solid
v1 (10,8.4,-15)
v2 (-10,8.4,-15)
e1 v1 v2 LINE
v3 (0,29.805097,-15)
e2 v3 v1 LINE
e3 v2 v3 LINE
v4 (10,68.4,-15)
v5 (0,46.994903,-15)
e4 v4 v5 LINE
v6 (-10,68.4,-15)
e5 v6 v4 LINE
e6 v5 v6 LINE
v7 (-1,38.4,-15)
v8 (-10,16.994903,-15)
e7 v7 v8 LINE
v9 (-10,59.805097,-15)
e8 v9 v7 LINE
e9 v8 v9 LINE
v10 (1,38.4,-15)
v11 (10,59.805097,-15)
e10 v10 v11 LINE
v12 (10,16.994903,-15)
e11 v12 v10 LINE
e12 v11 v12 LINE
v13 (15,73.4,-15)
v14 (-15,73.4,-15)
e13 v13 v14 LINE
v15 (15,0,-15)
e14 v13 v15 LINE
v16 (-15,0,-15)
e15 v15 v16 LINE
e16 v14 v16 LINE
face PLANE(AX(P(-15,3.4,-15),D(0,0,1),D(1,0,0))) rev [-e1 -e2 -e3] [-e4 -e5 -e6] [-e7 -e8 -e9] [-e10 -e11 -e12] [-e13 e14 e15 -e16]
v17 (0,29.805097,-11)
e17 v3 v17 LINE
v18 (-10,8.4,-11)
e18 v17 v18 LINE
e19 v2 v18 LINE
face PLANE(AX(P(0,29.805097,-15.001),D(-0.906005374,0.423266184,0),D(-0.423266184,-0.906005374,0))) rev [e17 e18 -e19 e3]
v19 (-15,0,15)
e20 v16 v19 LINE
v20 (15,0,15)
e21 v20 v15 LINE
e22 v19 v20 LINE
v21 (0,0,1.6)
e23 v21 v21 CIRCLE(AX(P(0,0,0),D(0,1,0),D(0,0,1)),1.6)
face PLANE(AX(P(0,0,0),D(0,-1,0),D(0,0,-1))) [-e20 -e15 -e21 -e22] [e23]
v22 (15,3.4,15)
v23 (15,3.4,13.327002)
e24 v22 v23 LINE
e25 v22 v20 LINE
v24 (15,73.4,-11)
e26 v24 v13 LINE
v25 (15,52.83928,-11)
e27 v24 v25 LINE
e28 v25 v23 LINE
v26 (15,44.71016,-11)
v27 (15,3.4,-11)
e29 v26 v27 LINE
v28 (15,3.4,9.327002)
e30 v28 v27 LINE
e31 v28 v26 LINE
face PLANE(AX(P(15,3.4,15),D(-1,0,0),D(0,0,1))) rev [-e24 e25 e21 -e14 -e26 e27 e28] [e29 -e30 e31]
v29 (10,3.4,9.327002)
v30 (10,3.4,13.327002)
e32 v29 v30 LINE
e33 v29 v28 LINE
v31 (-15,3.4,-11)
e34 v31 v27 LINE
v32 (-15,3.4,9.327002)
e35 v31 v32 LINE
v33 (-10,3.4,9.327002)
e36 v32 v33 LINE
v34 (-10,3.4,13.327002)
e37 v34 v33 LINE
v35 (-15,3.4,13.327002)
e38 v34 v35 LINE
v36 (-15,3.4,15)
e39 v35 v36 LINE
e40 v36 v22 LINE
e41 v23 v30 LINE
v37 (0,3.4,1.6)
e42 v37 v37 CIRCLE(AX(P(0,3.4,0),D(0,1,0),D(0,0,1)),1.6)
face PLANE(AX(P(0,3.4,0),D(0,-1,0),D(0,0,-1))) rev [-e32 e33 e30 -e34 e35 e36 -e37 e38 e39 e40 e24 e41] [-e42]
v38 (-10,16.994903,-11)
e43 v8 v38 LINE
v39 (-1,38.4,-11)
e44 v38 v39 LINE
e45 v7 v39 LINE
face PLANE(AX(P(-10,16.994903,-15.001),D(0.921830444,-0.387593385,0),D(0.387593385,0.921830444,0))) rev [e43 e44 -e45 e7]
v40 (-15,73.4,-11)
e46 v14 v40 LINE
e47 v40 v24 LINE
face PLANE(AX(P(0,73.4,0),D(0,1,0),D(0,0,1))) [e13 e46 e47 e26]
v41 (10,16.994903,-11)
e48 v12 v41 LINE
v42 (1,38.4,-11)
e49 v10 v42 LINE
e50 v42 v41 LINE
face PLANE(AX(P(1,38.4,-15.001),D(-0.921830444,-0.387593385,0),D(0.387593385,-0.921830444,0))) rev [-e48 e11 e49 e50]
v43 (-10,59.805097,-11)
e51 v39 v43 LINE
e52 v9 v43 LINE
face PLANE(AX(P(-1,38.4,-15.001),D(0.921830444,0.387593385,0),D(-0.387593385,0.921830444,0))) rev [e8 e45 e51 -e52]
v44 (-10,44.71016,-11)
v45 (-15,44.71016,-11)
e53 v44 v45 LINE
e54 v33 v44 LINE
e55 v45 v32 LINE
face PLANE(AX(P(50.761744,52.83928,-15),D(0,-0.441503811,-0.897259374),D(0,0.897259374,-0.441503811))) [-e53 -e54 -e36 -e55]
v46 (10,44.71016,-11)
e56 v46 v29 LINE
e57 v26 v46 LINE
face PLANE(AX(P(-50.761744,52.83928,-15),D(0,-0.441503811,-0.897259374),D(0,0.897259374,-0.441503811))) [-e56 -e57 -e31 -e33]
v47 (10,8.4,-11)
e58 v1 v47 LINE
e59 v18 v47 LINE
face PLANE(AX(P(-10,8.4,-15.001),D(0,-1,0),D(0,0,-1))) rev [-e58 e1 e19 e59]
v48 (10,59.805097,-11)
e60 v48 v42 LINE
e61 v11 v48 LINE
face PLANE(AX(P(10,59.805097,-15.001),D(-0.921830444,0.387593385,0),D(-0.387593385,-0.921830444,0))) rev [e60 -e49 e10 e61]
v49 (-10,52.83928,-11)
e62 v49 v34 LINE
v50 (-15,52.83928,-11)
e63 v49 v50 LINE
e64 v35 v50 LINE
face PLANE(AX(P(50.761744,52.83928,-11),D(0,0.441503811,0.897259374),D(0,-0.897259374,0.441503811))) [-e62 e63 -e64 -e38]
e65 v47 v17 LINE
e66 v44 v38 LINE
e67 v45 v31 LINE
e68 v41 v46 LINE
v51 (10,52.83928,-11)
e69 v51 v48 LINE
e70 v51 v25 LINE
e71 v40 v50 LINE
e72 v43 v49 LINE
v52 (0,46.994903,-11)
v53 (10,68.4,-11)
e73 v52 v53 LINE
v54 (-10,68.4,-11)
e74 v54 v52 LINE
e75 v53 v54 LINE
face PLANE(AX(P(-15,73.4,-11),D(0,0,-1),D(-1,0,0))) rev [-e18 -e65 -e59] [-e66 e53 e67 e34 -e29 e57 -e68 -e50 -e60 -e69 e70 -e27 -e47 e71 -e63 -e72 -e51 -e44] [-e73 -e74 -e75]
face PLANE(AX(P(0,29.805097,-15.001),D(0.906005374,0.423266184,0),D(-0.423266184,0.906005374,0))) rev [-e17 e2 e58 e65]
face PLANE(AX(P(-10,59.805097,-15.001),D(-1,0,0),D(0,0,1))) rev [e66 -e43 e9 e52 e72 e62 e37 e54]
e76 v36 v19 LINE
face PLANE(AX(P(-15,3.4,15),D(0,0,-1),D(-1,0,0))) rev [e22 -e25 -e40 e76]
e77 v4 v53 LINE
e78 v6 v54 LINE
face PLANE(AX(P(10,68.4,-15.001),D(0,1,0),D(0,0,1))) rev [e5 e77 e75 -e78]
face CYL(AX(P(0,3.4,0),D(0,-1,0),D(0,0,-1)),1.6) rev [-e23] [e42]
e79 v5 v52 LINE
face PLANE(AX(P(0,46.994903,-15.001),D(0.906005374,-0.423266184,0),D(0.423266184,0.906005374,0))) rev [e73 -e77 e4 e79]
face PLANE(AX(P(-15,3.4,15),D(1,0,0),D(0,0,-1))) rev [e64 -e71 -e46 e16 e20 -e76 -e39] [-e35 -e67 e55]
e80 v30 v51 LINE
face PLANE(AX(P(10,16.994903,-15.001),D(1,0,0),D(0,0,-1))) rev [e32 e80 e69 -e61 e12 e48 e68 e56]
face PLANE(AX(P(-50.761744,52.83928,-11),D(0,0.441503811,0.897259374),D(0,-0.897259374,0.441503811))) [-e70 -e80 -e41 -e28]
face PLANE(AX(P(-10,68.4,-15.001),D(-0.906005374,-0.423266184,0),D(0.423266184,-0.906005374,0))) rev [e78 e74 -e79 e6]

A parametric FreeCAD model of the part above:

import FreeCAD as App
import Part
import Sketcher


def add_polygon(sketch, points):
    """Adds a closed chain of lines whose ends are joined by coincident constraints."""
    first, n = sketch.GeometryCount, len(points)
    for a, b in zip(points, points[1:] + points[:1]):
        sketch.addGeometry(Part.LineSegment(App.Vector(*a, 0), App.Vector(*b, 0)), False)
    for i in range(n):
        sketch.addConstraint(Sketcher.Constraint("Coincident", first + i, 2, first + (i + 1) % n, 1))

doc = App.newDocument("Part")
body = doc.addObject("PartDesign::Body", "Body")

# Sketch on XZ plane
sketch1 = body.newObject("Sketcher::SketchObject", "Sketch")
sketch1.AttachmentSupport = (doc.getObject("XZ_Plane"), [""])
sketch1.MapMode = "FlatFace"
add_polygon(sketch1, [(-15, -15), (-15, 15), (15, 15), (15, -15)])  # lines 0-3
sketch1.addGeometry(Part.Circle(App.Vector(0, 0, 0), App.Vector(0, 0, 1), 1.6), False)  # 4
sketch1.addConstraint(Sketcher.Constraint("Vertical", 0))
sketch1.addConstraint(Sketcher.Constraint("Horizontal", 1))
sketch1.addConstraint(Sketcher.Constraint("Vertical", 2))
sketch1.addConstraint(Sketcher.Constraint("Horizontal", 3))
sketch1.addConstraint(Sketcher.Constraint("Coincident", 4, 3, -1, 1))
sketch1.addConstraint(Sketcher.Constraint("Symmetric", 0, 2, 2, 2, -1, 1))
sketch1.addConstraint(Sketcher.Constraint("Equal", 3, 0))
sketch1.addConstraint(Sketcher.Constraint("Diameter", 4, 3.2))
sketch1.addConstraint(Sketcher.Constraint("DistanceX", 1, 1, 1, 2, 30.0))
pad1 = body.newObject("PartDesign::Pad", "Pad")
pad1.Profile = sketch1
pad1.Length = 3.4
pad1.Reversed = True

# Sketch on XZ plane
sketch2 = body.newObject("Sketcher::SketchObject", "Sketch001")
sketch2.AttachmentSupport = (doc.getObject("XZ_Plane"), [""])
sketch2.MapMode = "FlatFace"
sketch2.AttachmentOffset = App.Placement(App.Vector(0, 0, -3.4), App.Rotation())
add_polygon(sketch2, [(-15, -15), (-15, -11), (15, -11), (15, -15)])  # lines 0-3
sketch2.addConstraint(Sketcher.Constraint("Vertical", 0))
sketch2.addConstraint(Sketcher.Constraint("Horizontal", 1))
sketch2.addConstraint(Sketcher.Constraint("Vertical", 2))
sketch2.addConstraint(Sketcher.Constraint("Horizontal", 3))
sketch2.addConstraint(Sketcher.Constraint("DistanceX", 1, 1, 1, 2, 30.0))
sketch2.addConstraint(Sketcher.Constraint("DistanceY", 0, 1, 0, 2, 4.0))
sketch2.addConstraint(Sketcher.Constraint("DistanceX", 0, 2, -1, 1, 15.0))
sketch2.addConstraint(Sketcher.Constraint("DistanceY", 0, 2, -1, 1, 11.0))
pad2 = body.newObject("PartDesign::Pad", "Pad001")
pad2.Profile = sketch2
pad2.Length = 70
pad2.Reversed = True

# Sketch on XY plane
sketch3 = body.newObject("Sketcher::SketchObject", "Sketch002")
sketch3.AttachmentSupport = (doc.getObject("XY_Plane"), [""])
sketch3.MapMode = "FlatFace"
sketch3.AttachmentOffset = App.Placement(App.Vector(0, 0, -11), App.Rotation())
add_polygon(sketch3, [(1, 38), (10, 17), (10, 60)])  # lines 0-2
sketch3.addConstraint(Sketcher.Constraint("Vertical", 1))
sketch3.addConstraint(Sketcher.Constraint("Equal", 0, 2))
sketch3.addConstraint(Sketcher.Constraint("DistanceX", -1, 1, 0, 2, 10.0))
sketch3.addConstraint(Sketcher.Constraint("DistanceX", -1, 1, 2, 2, 1.0))
sketch3.addConstraint(Sketcher.Constraint("DistanceY", -1, 1, 2, 2, 38.4))
sketch3.addConstraint(Sketcher.Constraint("Distance", 0, 23.220211))
pocket1 = body.newObject("PartDesign::Pocket", "Pocket")
pocket1.Profile = sketch3
pocket1.Type = "UpToFirst"

# Sketch on XY plane
sketch4 = body.newObject("Sketcher::SketchObject", "Sketch003")
sketch4.AttachmentSupport = (doc.getObject("XY_Plane"), [""])
sketch4.MapMode = "FlatFace"
sketch4.AttachmentOffset = App.Placement(App.Vector(0, 0, -11), App.Rotation())
add_polygon(sketch4, [(-1, 38), (-10, 60), (-10, 17)])  # lines 0-2
sketch4.addConstraint(Sketcher.Constraint("Vertical", 1))
sketch4.addConstraint(Sketcher.Constraint("Equal", 0, 2))
sketch4.addConstraint(Sketcher.Constraint("DistanceX", 0, 2, -1, 1, 10.0))
sketch4.addConstraint(Sketcher.Constraint("DistanceX", 2, 2, -1, 1, 1.0))
sketch4.addConstraint(Sketcher.Constraint("DistanceY", -1, 1, 2, 2, 38.4))
sketch4.addConstraint(Sketcher.Constraint("Distance", 0, 23.220211))
pocket2 = body.newObject("PartDesign::Pocket", "Pocket001")
pocket2.Profile = sketch4
pocket2.Type = "UpToFirst"

# Sketch on XY plane
sketch5 = body.newObject("Sketcher::SketchObject", "Sketch004")
sketch5.AttachmentSupport = (doc.getObject("XY_Plane"), [""])
sketch5.MapMode = "FlatFace"
sketch5.AttachmentOffset = App.Placement(App.Vector(0, 0, -11), App.Rotation())
add_polygon(sketch5, [(-10, 68), (0, 47), (10, 68)])  # lines 0-2
sketch5.addConstraint(Sketcher.Constraint("Horizontal", 2))
sketch5.addConstraint(Sketcher.Constraint("PointOnObject", 0, 2, -2))
sketch5.addConstraint(Sketcher.Constraint("Equal", 0, 1))
sketch5.addConstraint(Sketcher.Constraint("DistanceX", 2, 2, 2, 1, 20.0))
sketch5.addConstraint(Sketcher.Constraint("DistanceY", -1, 1, 1, 2, 68.4))
sketch5.addConstraint(Sketcher.Constraint("Distance", 0, 23.625795))
pocket3 = body.newObject("PartDesign::Pocket", "Pocket002")
pocket3.Profile = sketch5
pocket3.Type = "UpToFirst"

# Sketch on XY plane
sketch6 = body.newObject("Sketcher::SketchObject", "Sketch005")
sketch6.AttachmentSupport = (doc.getObject("XY_Plane"), [""])
sketch6.MapMode = "FlatFace"
sketch6.AttachmentOffset = App.Placement(App.Vector(0, 0, -11), App.Rotation())
add_polygon(sketch6, [(0, 30), (-10, 8), (10, 8)])  # lines 0-2
sketch6.addConstraint(Sketcher.Constraint("Horizontal", 1))
sketch6.addConstraint(Sketcher.Constraint("PointOnObject", 2, 2, -2))
sketch6.addConstraint(Sketcher.Constraint("Equal", 0, 2))
sketch6.addConstraint(Sketcher.Constraint("DistanceX", 1, 1, 1, 2, 20.0))
sketch6.addConstraint(Sketcher.Constraint("DistanceY", -1, 1, 0, 2, 8.4))
sketch6.addConstraint(Sketcher.Constraint("Distance", 0, 23.625795))
pocket4 = body.newObject("PartDesign::Pocket", "Pocket003")
pocket4.Profile = sketch6
pocket4.Type = "UpToFirst"

# Sketch on YZ plane
sketch7 = body.newObject("Sketcher::SketchObject", "Sketch006")
sketch7.AttachmentSupport = (doc.getObject("YZ_Plane"), [""])
sketch7.MapMode = "FlatFace"
sketch7.AttachmentOffset = App.Placement(App.Vector(0, 0, -15), App.Rotation())
add_polygon(sketch7, [(52.8, -11), (52.8, -15), (0, 11), (0, 15)])  # lines 0-3
sketch7.addConstraint(Sketcher.Constraint("Vertical", 0))
sketch7.addConstraint(Sketcher.Constraint("Vertical", 2))
sketch7.addConstraint(Sketcher.Constraint("PointOnObject", 1, 2, -2))
sketch7.addConstraint(Sketcher.Constraint("Parallel", 1, 3))
sketch7.addConstraint(Sketcher.Constraint("DistanceY", 0, 2, 0, 1, 4.0))
sketch7.addConstraint(Sketcher.Constraint("DistanceY", 0, 2, -1, 1, 15.0))
sketch7.addConstraint(Sketcher.Constraint("DistanceY", -1, 1, 1, 2, 11.0))
sketch7.addConstraint(Sketcher.Constraint("Distance", 1, 58.889639))
pad3 = body.newObject("PartDesign::Pad", "Pad002")
pad3.Profile = sketch7
pad3.Length = 5

# Sketch on YZ plane
sketch8 = body.newObject("Sketcher::SketchObject", "Sketch007")
sketch8.AttachmentSupport = (doc.getObject("YZ_Plane"), [""])
sketch8.MapMode = "FlatFace"
sketch8.AttachmentOffset = App.Placement(App.Vector(0, 0, 15), App.Rotation())
add_polygon(sketch8, [(52.8, -15), (52.8, -11), (0, 15), (0, 11)])  # lines 0-3
sketch8.addConstraint(Sketcher.Constraint("Vertical", 0))
sketch8.addConstraint(Sketcher.Constraint("Vertical", 2))
sketch8.addConstraint(Sketcher.Constraint("PointOnObject", 1, 2, -2))
sketch8.addConstraint(Sketcher.Constraint("Parallel", 1, 3))
sketch8.addConstraint(Sketcher.Constraint("DistanceY", 0, 1, 0, 2, 4.0))
sketch8.addConstraint(Sketcher.Constraint("DistanceY", 0, 2, -1, 1, 11.0))
sketch8.addConstraint(Sketcher.Constraint("DistanceY", -1, 1, 1, 2, 15.0))
sketch8.addConstraint(Sketcher.Constraint("Distance", 1, 58.889639))
pad4 = body.newObject("PartDesign::Pad", "Pad003")
pad4.Profile = sketch8
pad4.Length = 5
pad4.Reversed = True

doc.recompute()
